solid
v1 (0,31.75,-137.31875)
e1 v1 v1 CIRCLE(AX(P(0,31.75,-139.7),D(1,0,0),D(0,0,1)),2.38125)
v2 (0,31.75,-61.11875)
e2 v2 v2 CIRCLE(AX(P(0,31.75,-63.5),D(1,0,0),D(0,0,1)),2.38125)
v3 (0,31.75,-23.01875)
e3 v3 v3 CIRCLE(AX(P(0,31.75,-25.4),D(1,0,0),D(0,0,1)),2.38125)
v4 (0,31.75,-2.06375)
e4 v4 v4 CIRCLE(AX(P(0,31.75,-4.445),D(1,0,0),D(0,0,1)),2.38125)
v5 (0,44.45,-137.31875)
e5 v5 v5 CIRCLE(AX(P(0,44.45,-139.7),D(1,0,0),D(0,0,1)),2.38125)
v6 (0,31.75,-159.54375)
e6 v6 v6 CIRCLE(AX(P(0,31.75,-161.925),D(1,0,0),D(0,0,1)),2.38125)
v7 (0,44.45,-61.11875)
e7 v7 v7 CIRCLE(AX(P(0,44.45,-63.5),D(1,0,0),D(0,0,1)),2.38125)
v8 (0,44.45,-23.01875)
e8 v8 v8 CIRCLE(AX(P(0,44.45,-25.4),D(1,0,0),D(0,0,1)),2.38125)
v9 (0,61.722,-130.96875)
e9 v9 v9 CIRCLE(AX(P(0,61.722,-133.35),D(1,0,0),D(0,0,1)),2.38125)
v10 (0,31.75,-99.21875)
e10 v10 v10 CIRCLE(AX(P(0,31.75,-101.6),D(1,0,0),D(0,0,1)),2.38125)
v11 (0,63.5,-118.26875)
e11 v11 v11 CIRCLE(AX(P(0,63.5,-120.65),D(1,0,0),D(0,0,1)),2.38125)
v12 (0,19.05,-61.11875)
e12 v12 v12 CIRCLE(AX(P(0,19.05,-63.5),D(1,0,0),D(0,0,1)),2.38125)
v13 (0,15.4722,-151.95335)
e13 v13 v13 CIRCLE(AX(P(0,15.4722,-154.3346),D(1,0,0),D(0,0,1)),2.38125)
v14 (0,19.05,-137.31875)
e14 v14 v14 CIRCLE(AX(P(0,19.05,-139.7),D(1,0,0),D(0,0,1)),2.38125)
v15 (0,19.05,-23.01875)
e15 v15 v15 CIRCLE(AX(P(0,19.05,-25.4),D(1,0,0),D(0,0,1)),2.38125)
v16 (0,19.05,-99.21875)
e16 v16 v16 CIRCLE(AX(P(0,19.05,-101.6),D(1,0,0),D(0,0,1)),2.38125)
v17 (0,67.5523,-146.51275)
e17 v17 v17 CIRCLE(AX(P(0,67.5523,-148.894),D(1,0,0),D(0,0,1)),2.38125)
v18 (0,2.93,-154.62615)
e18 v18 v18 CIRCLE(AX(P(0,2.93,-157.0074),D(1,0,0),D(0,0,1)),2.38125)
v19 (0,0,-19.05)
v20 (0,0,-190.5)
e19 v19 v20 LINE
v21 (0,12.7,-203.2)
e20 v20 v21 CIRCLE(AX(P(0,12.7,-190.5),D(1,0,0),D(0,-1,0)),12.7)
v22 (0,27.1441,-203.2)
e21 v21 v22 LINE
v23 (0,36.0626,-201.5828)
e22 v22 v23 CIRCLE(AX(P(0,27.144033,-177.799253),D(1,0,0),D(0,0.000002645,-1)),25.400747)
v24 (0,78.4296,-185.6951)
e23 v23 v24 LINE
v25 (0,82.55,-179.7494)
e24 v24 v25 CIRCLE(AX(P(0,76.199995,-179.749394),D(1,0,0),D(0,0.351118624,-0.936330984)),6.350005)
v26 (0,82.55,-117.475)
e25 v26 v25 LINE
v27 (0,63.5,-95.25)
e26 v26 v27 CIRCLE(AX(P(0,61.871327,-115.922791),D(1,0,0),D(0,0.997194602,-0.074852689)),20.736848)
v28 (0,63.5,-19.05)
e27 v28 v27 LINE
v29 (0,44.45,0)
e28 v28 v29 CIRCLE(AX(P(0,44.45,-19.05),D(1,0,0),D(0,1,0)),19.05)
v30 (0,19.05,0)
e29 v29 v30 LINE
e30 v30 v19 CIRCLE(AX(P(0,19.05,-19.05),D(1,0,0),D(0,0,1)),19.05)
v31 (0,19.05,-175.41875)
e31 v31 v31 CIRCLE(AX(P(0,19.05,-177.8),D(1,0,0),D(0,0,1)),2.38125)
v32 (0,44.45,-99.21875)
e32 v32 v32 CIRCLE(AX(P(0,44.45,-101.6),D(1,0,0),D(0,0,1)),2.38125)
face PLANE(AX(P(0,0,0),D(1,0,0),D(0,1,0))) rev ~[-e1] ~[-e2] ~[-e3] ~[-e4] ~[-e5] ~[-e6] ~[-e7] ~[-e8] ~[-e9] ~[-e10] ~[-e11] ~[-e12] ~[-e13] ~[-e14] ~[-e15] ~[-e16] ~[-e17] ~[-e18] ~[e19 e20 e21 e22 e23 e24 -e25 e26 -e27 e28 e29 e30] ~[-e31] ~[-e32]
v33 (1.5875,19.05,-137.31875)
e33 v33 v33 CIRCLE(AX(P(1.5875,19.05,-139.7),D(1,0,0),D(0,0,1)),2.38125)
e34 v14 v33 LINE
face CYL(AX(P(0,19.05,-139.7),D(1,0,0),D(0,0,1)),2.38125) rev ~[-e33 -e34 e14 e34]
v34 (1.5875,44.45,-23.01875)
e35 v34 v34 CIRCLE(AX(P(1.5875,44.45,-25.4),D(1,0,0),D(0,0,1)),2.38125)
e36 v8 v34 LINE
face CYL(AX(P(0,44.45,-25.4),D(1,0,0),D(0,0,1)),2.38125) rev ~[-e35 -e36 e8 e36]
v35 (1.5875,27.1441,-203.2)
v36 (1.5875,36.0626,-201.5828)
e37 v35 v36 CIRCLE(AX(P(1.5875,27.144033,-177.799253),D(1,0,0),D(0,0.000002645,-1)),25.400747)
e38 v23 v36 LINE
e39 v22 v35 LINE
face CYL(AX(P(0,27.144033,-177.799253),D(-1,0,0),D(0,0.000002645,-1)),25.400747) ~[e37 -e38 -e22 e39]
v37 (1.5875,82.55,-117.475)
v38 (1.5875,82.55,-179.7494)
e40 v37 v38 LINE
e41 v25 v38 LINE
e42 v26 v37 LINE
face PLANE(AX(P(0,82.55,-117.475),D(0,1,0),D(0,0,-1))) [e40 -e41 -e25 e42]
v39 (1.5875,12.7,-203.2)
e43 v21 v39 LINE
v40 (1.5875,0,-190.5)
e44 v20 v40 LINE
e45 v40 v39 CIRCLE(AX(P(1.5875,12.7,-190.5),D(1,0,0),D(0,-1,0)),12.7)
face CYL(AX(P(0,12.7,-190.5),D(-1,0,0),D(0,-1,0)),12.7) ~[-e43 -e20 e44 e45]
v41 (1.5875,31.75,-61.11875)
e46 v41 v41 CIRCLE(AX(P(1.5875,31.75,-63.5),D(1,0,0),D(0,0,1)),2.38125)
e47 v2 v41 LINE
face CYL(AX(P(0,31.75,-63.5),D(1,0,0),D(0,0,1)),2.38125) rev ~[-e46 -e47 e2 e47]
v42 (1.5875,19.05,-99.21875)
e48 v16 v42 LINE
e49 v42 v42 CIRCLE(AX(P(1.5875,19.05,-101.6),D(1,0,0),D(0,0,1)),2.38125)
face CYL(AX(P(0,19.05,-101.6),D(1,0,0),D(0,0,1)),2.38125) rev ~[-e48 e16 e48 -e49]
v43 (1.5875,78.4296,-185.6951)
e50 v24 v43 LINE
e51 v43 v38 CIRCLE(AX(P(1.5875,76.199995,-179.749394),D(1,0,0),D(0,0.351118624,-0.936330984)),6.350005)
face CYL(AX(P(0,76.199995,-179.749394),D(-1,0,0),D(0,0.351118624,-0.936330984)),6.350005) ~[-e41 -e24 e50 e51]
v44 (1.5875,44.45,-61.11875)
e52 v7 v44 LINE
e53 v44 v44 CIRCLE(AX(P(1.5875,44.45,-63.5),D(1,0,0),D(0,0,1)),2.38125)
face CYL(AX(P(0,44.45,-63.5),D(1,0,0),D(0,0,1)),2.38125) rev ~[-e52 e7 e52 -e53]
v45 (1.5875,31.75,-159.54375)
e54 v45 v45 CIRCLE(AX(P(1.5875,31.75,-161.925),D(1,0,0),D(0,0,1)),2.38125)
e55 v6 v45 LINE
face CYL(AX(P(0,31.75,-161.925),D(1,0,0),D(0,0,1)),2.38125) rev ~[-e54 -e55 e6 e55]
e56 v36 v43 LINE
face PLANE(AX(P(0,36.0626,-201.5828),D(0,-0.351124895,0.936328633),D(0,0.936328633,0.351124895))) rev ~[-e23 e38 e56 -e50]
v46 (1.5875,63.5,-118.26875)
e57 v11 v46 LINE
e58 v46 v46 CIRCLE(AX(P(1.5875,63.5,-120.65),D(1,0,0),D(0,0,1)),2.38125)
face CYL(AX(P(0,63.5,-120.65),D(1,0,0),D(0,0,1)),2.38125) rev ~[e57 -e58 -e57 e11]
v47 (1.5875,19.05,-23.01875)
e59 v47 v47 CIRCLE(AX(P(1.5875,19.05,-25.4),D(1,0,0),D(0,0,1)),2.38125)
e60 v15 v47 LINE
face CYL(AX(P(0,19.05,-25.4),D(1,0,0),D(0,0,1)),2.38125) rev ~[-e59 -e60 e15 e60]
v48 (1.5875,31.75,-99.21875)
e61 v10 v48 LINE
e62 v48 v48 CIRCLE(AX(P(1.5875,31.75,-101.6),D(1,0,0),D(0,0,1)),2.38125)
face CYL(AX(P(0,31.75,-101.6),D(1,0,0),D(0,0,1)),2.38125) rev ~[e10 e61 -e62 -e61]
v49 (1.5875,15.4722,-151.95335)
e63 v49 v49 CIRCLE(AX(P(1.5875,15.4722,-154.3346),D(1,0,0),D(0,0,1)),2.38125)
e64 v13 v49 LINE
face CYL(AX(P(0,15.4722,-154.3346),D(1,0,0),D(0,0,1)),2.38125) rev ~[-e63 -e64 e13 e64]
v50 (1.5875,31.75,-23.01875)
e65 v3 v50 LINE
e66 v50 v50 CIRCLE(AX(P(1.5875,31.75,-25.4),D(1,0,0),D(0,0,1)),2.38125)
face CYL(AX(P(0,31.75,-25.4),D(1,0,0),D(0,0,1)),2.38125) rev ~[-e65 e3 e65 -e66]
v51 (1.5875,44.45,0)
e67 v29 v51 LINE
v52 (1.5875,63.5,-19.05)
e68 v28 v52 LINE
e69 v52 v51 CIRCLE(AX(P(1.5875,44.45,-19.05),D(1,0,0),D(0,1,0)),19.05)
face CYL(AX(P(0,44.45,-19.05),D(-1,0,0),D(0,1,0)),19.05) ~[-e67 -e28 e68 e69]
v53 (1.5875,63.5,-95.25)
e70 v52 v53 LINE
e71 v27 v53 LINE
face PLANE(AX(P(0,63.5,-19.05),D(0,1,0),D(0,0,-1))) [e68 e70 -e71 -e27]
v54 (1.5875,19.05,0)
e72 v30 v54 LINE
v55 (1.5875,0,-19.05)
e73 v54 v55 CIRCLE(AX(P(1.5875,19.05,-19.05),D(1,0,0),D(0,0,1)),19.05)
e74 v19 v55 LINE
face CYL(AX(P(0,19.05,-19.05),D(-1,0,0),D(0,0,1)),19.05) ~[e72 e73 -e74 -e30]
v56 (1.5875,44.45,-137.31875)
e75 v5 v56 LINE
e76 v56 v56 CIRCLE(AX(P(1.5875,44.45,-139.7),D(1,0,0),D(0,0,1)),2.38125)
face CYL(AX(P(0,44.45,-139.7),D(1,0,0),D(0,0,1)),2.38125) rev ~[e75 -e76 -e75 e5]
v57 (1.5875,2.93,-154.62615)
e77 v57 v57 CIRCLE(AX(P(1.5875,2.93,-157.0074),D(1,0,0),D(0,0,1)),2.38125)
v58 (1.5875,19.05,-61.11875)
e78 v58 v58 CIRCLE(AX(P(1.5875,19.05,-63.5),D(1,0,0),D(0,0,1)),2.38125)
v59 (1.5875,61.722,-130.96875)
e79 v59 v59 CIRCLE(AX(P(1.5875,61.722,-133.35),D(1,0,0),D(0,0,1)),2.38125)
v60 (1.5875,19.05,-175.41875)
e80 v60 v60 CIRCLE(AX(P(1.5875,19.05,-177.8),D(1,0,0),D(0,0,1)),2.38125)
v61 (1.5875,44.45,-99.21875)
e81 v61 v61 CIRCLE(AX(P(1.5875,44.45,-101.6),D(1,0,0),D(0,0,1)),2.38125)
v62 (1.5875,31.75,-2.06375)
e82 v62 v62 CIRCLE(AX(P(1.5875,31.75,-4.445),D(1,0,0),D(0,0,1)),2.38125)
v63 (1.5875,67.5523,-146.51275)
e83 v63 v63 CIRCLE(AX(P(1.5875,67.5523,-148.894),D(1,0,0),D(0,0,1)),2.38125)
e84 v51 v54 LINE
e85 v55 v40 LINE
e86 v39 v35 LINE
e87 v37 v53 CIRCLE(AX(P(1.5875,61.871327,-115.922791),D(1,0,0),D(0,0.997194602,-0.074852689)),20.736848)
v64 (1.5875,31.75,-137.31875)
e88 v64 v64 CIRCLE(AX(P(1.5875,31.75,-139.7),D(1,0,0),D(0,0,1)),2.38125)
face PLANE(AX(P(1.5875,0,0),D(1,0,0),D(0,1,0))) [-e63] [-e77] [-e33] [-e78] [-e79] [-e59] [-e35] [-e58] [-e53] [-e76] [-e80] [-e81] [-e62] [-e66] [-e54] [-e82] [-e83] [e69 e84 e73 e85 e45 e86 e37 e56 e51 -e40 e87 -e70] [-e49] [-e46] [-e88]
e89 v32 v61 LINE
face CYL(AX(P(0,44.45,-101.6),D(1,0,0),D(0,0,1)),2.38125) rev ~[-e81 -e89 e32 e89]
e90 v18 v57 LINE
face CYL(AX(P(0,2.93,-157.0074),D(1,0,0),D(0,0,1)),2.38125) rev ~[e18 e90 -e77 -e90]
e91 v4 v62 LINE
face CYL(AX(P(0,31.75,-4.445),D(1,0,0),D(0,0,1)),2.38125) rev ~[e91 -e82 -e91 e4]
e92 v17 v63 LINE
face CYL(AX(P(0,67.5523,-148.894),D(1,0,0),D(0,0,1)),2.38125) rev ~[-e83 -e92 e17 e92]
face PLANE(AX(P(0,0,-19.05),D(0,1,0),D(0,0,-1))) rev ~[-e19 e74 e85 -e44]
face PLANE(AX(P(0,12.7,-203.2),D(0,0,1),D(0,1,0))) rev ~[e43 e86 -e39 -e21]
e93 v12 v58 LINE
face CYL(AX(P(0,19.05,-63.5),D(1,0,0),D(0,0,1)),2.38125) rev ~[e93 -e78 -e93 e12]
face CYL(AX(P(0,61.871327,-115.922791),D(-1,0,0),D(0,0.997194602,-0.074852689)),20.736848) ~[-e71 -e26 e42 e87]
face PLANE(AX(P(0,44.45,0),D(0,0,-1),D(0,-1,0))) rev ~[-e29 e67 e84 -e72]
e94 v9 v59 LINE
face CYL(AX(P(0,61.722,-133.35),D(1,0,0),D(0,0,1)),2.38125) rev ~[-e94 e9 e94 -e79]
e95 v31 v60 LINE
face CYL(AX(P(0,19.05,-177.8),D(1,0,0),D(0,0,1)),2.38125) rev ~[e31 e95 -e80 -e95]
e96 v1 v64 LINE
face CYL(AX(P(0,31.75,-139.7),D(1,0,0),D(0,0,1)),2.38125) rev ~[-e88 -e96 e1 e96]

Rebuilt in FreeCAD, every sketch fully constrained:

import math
import FreeCAD as App
import Part
import Sketcher

V = App.Vector
Q = App.Units.Quantity

doc = App.newDocument("Part")
body = doc.addObject("PartDesign::Body", "Body")

sketch1 = body.newObject("Sketcher::SketchObject", "Sketch")
sketch1.AttachmentSupport = (doc.getObject("YZ_Plane"), [""])
sketch1.MapMode = "FlatFace"
sketch1.addGeometry(Part.ArcOfCircle(Part.Circle(V(19.05, -19.05, 0), V(0, 0, 1), 19.05), math.radians(90), math.radians(180)), False)
sketch1.addGeometry(Part.LineSegment(V(0, -19.05, 0), V(0, -190.5, 0)), False)
sketch1.addGeometry(Part.ArcOfCircle(Part.Circle(V(12.7, -190.5, 0), V(0, 0, 1), 12.7), math.radians(180), math.radians(270)), False)
sketch1.addGeometry(Part.LineSegment(V(12.7, -203.2, 0), V(27.1441, -203.2, 0)), False)
sketch1.addGeometry(Part.ArcOfCircle(Part.Circle(V(27.1441, -177.8, 0), V(0, 0, 1), 25.4), math.radians(-90), math.radians(-69.44406)), False)
sketch1.addGeometry(Part.LineSegment(V(36.0626, -201.5828, 0), V(78.4296, -185.6951, 0)), False)
sketch1.addGeometry(Part.ArcOfCircle(Part.Circle(V(76.2, -179.7494, 0), V(0, 0, 1), 6.349997), math.radians(-69.444272), math.radians(0)), False)
sketch1.addGeometry(Part.LineSegment(V(82.55, -179.7494, 0), V(82.55, -117.475, 0)), False)
sketch1.addGeometry(Part.ArcOfCircle(Part.Circle(V(61.8713, -115.9228, 0), V(0, 0, 1), 20.736874), math.radians(-4.292728), math.radians(85.495275)), False)
sketch1.addGeometry(Part.LineSegment(V(63.5, -95.25, 0), V(63.5, -19.05, 0)), False)
sketch1.addGeometry(Part.ArcOfCircle(Part.Circle(V(44.45, -19.05, 0), V(0, 0, 1), 19.05), math.radians(0), math.radians(90)), False)
sketch1.addGeometry(Part.LineSegment(V(44.45, 0, 0), V(19.05, 0, 0)), False)
sketch1.addConstraint(Sketcher.Constraint("Tangent", 0, 2, 1, 1))
sketch1.addConstraint(Sketcher.Constraint("Tangent", 1, 2, 2, 1))
sketch1.addConstraint(Sketcher.Constraint("Tangent", 2, 2, 3, 1))
sketch1.addConstraint(Sketcher.Constraint("Tangent", 3, 2, 4, 1))
sketch1.addConstraint(Sketcher.Constraint("Tangent", 4, 2, 5, 1))
sketch1.addConstraint(Sketcher.Constraint("Tangent", 5, 2, 6, 1))
sketch1.addConstraint(Sketcher.Constraint("Tangent", 6, 2, 7, 1))
sketch1.addConstraint(Sketcher.Constraint("Coincident", 7, 2, 8, 1))
sketch1.addConstraint(Sketcher.Constraint("Coincident", 8, 2, 9, 1))
sketch1.addConstraint(Sketcher.Constraint("Tangent", 9, 2, 10, 1))
sketch1.addConstraint(Sketcher.Constraint("Tangent", 10, 2, 11, 1))
sketch1.addConstraint(Sketcher.Constraint("Tangent", 11, 2, 0, 1))
sketch1.addConstraint(Sketcher.Constraint("Vertical", 1))
sketch1.addConstraint(Sketcher.Constraint("Horizontal", 3))
sketch1.addConstraint(Sketcher.Constraint("Vertical", 7))
sketch1.addConstraint(Sketcher.Constraint("Vertical", 9))
sketch1.addConstraint(Sketcher.Constraint("Horizontal", 11))
sketch1.addConstraint(Sketcher.Constraint("Equal", 0, 10))
sketch1.addConstraint(Sketcher.Constraint("PointOnObject", 0, 2, -2))
sketch1.addConstraint(Sketcher.Constraint("PointOnObject", 10, 2, -1))
sketch1.addConstraint(Sketcher.Constraint("Radius", 4, Q("1 in")))
sketch1.addConstraint(Sketcher.Constraint("Radius", 2, Q("0.5 in")))
sketch1.addConstraint(Sketcher.Constraint("DistanceX", 11, 2, 11, 1, Q("1 in")))
sketch1.addConstraint(Sketcher.Constraint("DistanceY", 9, 1, 9, 2, Q("3 in")))
sketch1.addConstraint(Sketcher.Constraint("Radius", 0, Q("0.75 in")))
sketch1.addConstraint(Sketcher.Constraint("Radius", 6, Q("0.25 in")))
sketch1.addConstraint(Sketcher.Constraint("DistanceX", -1, 1, 6, 3, Q("3 in")))
sketch1.addConstraint(Sketcher.Constraint("DistanceY", 2, 2, -1, 1, Q("8 in")))
sketch1.addConstraint(Sketcher.Constraint("DistanceY", 7, 2, 8, 2, Q("0.875 in")))
sketch1.addConstraint(Sketcher.Constraint("Radius", 8, Q("20.7369 mm")))
sketch1.addConstraint(Sketcher.Constraint("DistanceX", 4, 2, 5, 2, Q("1.668 in")))
sketch1.addConstraint(Sketcher.Constraint("DistanceX", 3, 1, 3, 2, Q("14.444 mm")))
pad1 = body.newObject("PartDesign::Pad", "Pad")
pad1.Profile = sketch1
pad1.Length = Q("0.0625 in")

sketch2 = body.newObject("Sketcher::SketchObject", "Sketch001")
sketch2.AttachmentSupport = (doc.getObject("YZ_Plane"), [""])
sketch2.MapMode = "FlatFace"
sketch2.addGeometry(Part.Circle(V(19.05, -25.4, 0), V(0, 0, 1), 2.38125), False)
sketch2.addGeometry(Part.Circle(V(19.05, -63.5, 0), V(0, 0, 1), 2.38125), False)
sketch2.addGeometry(Part.Circle(V(19.05, -101.6, 0), V(0, 0, 1), 2.38125), False)
sketch2.addGeometry(Part.Circle(V(19.05, -139.7, 0), V(0, 0, 1), 2.38125), False)
sketch2.addGeometry(Part.Circle(V(44.45, -25.4, 0), V(0, 0, 1), 2.38125), False)
sketch2.addGeometry(Part.Circle(V(31.75, -25.4, 0), V(0, 0, 1), 2.38125), False)
sketch2.addGeometry(Part.Circle(V(31.75, -63.5, 0), V(0, 0, 1), 2.38125), False)
sketch2.addGeometry(Part.Circle(V(44.45, -63.5, 0), V(0, 0, 1), 2.38125), False)
sketch2.addGeometry(Part.Circle(V(31.75, -101.6, 0), V(0, 0, 1), 2.38125), False)
sketch2.addGeometry(Part.Circle(V(44.45, -101.6, 0), V(0, 0, 1), 2.38125), False)
sketch2.addGeometry(Part.Circle(V(31.75, -139.7, 0), V(0, 0, 1), 2.38125), False)
sketch2.addGeometry(Part.Circle(V(44.45, -139.7, 0), V(0, 0, 1), 2.38125), False)
sketch2.addGeometry(Part.Circle(V(31.75, -161.925, 0), V(0, 0, 1), 2.38125), False)
sketch2.addGeometry(Part.Circle(V(67.5523, -148.894, 0), V(0, 0, 1), 2.38125), False)
sketch2.addGeometry(Part.Circle(V(19.05, -177.8, 0), V(0, 0, 1), 2.38125), False)
sketch2.addGeometry(Part.Circle(V(15.4722, -154.3346, 0), V(0, 0, 1), 2.38125), False)
sketch2.addGeometry(Part.Circle(V(2.93, -157.0074, 0), V(0, 0, 1), 2.38125), False)
sketch2.addGeometry(Part.Circle(V(63.5, -120.65, 0), V(0, 0, 1), 2.38125), False)
sketch2.addGeometry(Part.Circle(V(61.722, -133.35, 0), V(0, 0, 1), 2.38125), False)
sketch2.addGeometry(Part.Circle(V(31.75, -4.445, 0), V(0, 0, 1), 2.38125), False)
sketch2.addConstraint(Sketcher.Constraint("Equal", 0, 1))
sketch2.addConstraint(Sketcher.Constraint("Equal", 1, 2))
sketch2.addConstraint(Sketcher.Constraint("Equal", 2, 3))
sketch2.addConstraint(Sketcher.Constraint("Equal", 3, 4))
sketch2.addConstraint(Sketcher.Constraint("Equal", 4, 5))
sketch2.addConstraint(Sketcher.Constraint("Equal", 5, 6))
sketch2.addConstraint(Sketcher.Constraint("Equal", 6, 7))
sketch2.addConstraint(Sketcher.Constraint("Equal", 7, 8))
sketch2.addConstraint(Sketcher.Constraint("Equal", 8, 9))
sketch2.addConstraint(Sketcher.Constraint("Equal", 9, 10))
sketch2.addConstraint(Sketcher.Constraint("Equal", 10, 11))
sketch2.addConstraint(Sketcher.Constraint("Equal", 11, 12))
sketch2.addConstraint(Sketcher.Constraint("Equal", 12, 13))
sketch2.addConstraint(Sketcher.Constraint("Equal", 13, 14))
sketch2.addConstraint(Sketcher.Constraint("Equal", 14, 15))
sketch2.addConstraint(Sketcher.Constraint("Equal", 15, 16))
sketch2.addConstraint(Sketcher.Constraint("Equal", 16, 17))
sketch2.addConstraint(Sketcher.Constraint("Equal", 17, 18))
sketch2.addConstraint(Sketcher.Constraint("Equal", 18, 19))
sketch2.addConstraint(Sketcher.Constraint("Horizontal", 0, 3, 4, 3))
sketch2.addConstraint(Sketcher.Constraint("Horizontal", 4, 3, 5, 3))
sketch2.addConstraint(Sketcher.Constraint("Horizontal", 1, 3, 6, 3))
sketch2.addConstraint(Sketcher.Constraint("Horizontal", 6, 3, 7, 3))
sketch2.addConstraint(Sketcher.Constraint("Horizontal", 2, 3, 8, 3))
sketch2.addConstraint(Sketcher.Constraint("Horizontal", 8, 3, 9, 3))
sketch2.addConstraint(Sketcher.Constraint("Horizontal", 3, 3, 10, 3))
sketch2.addConstraint(Sketcher.Constraint("Horizontal", 10, 3, 11, 3))
sketch2.addConstraint(Sketcher.Constraint("Vertical", 0, 3, 1, 3))
sketch2.addConstraint(Sketcher.Constraint("Vertical", 1, 3, 2, 3))
sketch2.addConstraint(Sketcher.Constraint("Vertical", 2, 3, 3, 3))
sketch2.addConstraint(Sketcher.Constraint("Vertical", 5, 3, 6, 3))
sketch2.addConstraint(Sketcher.Constraint("Vertical", 4, 3, 7, 3))
sketch2.addConstraint(Sketcher.Constraint("Vertical", 6, 3, 8, 3))
sketch2.addConstraint(Sketcher.Constraint("Vertical", 7, 3, 9, 3))
sketch2.addConstraint(Sketcher.Constraint("Vertical", 8, 3, 10, 3))
sketch2.addConstraint(Sketcher.Constraint("Vertical", 9, 3, 11, 3))
sketch2.addConstraint(Sketcher.Constraint("Vertical", 10, 3, 12, 3))
sketch2.addConstraint(Sketcher.Constraint("Vertical", 3, 3, 14, 3))
sketch2.addConstraint(Sketcher.Constraint("Vertical", 12, 3, 19, 3))
sketch2.addConstraint(Sketcher.Constraint("Diameter", 0, Q("0.1875 in")))
sketch2.addConstraint(Sketcher.Constraint("DistanceY", 0, 3, -1, 1, Q("1 in")))
sketch2.addConstraint(Sketcher.Constraint("DistanceY", 2, 3, -1, 1, Q("4 in")))
sketch2.addConstraint(Sketcher.Constraint("DistanceY", 14, 3, -1, 1, Q("7 in")))
sketch2.addConstraint(Sketcher.Constraint("DistanceY", 3, 3, 1, 3, Q("3 in")))
sketch2.addConstraint(Sketcher.Constraint("DistanceX", 0, 3, 4, 3, Q("1 in")))
sketch2.addConstraint(Sketcher.Constraint("DistanceY", 1, 3, -1, 1, Q("2.5 in")))
sketch2.addConstraint(Sketcher.Constraint("DistanceX", -1, 1, 17, 3, Q("2.5 in")))
sketch2.addConstraint(Sketcher.Constraint("DistanceX", 0, 3, 5, 3, Q("0.5 in")))
sketch2.addConstraint(Sketcher.Constraint("DistanceY", 18, 3, 17, 3, Q("0.5 in")))
sketch2.addConstraint(Sketcher.Constraint("DistanceX", -1, 1, 0, 3, Q("0.75 in")))
sketch2.addConstraint(Sketcher.Constraint("DistanceY", 17, 3, -1, 1, Q("4.75 in")))
sketch2.addConstraint(Sketcher.Constraint("DistanceX", -1, 1, 18, 3, Q("2.43 in")))
sketch2.addConstraint(Sketcher.Constraint("DistanceY", 12, 3, -1, 1, Q("6.375 in")))
sketch2.addConstraint(Sketcher.Constraint("DistanceY", 19, 3, -1, 1, Q("0.175 in")))
sketch2.addConstraint(Sketcher.Constraint("DistanceY", 16, 3, -1, 1, Q("6.1814 in")))
sketch2.addConstraint(Sketcher.Constraint("DistanceX", -1, 1, 13, 3, Q("67.5523 mm")))
sketch2.addConstraint(Sketcher.Constraint("DistanceY", 13, 3, -1, 1, Q("148.894 mm")))
sketch2.addConstraint(Sketcher.Constraint("DistanceX", -1, 1, 15, 3, Q("15.4722 mm")))
sketch2.addConstraint(Sketcher.Constraint("DistanceY", 15, 3, -1, 1, Q("154.3346 mm")))
sketch2.addConstraint(Sketcher.Constraint("DistanceX", -1, 1, 16, 3, Q("2.93 mm")))
doc.recompute()
hole = body.newObject("PartDesign::Hole", "Hole")
hole.Profile = sketch2
hole.ThreadType = "None"
hole.Diameter = Q("0.1875 in")
hole.DepthType = "ThroughAll"
hole.Reversed = True

doc.recompute()
